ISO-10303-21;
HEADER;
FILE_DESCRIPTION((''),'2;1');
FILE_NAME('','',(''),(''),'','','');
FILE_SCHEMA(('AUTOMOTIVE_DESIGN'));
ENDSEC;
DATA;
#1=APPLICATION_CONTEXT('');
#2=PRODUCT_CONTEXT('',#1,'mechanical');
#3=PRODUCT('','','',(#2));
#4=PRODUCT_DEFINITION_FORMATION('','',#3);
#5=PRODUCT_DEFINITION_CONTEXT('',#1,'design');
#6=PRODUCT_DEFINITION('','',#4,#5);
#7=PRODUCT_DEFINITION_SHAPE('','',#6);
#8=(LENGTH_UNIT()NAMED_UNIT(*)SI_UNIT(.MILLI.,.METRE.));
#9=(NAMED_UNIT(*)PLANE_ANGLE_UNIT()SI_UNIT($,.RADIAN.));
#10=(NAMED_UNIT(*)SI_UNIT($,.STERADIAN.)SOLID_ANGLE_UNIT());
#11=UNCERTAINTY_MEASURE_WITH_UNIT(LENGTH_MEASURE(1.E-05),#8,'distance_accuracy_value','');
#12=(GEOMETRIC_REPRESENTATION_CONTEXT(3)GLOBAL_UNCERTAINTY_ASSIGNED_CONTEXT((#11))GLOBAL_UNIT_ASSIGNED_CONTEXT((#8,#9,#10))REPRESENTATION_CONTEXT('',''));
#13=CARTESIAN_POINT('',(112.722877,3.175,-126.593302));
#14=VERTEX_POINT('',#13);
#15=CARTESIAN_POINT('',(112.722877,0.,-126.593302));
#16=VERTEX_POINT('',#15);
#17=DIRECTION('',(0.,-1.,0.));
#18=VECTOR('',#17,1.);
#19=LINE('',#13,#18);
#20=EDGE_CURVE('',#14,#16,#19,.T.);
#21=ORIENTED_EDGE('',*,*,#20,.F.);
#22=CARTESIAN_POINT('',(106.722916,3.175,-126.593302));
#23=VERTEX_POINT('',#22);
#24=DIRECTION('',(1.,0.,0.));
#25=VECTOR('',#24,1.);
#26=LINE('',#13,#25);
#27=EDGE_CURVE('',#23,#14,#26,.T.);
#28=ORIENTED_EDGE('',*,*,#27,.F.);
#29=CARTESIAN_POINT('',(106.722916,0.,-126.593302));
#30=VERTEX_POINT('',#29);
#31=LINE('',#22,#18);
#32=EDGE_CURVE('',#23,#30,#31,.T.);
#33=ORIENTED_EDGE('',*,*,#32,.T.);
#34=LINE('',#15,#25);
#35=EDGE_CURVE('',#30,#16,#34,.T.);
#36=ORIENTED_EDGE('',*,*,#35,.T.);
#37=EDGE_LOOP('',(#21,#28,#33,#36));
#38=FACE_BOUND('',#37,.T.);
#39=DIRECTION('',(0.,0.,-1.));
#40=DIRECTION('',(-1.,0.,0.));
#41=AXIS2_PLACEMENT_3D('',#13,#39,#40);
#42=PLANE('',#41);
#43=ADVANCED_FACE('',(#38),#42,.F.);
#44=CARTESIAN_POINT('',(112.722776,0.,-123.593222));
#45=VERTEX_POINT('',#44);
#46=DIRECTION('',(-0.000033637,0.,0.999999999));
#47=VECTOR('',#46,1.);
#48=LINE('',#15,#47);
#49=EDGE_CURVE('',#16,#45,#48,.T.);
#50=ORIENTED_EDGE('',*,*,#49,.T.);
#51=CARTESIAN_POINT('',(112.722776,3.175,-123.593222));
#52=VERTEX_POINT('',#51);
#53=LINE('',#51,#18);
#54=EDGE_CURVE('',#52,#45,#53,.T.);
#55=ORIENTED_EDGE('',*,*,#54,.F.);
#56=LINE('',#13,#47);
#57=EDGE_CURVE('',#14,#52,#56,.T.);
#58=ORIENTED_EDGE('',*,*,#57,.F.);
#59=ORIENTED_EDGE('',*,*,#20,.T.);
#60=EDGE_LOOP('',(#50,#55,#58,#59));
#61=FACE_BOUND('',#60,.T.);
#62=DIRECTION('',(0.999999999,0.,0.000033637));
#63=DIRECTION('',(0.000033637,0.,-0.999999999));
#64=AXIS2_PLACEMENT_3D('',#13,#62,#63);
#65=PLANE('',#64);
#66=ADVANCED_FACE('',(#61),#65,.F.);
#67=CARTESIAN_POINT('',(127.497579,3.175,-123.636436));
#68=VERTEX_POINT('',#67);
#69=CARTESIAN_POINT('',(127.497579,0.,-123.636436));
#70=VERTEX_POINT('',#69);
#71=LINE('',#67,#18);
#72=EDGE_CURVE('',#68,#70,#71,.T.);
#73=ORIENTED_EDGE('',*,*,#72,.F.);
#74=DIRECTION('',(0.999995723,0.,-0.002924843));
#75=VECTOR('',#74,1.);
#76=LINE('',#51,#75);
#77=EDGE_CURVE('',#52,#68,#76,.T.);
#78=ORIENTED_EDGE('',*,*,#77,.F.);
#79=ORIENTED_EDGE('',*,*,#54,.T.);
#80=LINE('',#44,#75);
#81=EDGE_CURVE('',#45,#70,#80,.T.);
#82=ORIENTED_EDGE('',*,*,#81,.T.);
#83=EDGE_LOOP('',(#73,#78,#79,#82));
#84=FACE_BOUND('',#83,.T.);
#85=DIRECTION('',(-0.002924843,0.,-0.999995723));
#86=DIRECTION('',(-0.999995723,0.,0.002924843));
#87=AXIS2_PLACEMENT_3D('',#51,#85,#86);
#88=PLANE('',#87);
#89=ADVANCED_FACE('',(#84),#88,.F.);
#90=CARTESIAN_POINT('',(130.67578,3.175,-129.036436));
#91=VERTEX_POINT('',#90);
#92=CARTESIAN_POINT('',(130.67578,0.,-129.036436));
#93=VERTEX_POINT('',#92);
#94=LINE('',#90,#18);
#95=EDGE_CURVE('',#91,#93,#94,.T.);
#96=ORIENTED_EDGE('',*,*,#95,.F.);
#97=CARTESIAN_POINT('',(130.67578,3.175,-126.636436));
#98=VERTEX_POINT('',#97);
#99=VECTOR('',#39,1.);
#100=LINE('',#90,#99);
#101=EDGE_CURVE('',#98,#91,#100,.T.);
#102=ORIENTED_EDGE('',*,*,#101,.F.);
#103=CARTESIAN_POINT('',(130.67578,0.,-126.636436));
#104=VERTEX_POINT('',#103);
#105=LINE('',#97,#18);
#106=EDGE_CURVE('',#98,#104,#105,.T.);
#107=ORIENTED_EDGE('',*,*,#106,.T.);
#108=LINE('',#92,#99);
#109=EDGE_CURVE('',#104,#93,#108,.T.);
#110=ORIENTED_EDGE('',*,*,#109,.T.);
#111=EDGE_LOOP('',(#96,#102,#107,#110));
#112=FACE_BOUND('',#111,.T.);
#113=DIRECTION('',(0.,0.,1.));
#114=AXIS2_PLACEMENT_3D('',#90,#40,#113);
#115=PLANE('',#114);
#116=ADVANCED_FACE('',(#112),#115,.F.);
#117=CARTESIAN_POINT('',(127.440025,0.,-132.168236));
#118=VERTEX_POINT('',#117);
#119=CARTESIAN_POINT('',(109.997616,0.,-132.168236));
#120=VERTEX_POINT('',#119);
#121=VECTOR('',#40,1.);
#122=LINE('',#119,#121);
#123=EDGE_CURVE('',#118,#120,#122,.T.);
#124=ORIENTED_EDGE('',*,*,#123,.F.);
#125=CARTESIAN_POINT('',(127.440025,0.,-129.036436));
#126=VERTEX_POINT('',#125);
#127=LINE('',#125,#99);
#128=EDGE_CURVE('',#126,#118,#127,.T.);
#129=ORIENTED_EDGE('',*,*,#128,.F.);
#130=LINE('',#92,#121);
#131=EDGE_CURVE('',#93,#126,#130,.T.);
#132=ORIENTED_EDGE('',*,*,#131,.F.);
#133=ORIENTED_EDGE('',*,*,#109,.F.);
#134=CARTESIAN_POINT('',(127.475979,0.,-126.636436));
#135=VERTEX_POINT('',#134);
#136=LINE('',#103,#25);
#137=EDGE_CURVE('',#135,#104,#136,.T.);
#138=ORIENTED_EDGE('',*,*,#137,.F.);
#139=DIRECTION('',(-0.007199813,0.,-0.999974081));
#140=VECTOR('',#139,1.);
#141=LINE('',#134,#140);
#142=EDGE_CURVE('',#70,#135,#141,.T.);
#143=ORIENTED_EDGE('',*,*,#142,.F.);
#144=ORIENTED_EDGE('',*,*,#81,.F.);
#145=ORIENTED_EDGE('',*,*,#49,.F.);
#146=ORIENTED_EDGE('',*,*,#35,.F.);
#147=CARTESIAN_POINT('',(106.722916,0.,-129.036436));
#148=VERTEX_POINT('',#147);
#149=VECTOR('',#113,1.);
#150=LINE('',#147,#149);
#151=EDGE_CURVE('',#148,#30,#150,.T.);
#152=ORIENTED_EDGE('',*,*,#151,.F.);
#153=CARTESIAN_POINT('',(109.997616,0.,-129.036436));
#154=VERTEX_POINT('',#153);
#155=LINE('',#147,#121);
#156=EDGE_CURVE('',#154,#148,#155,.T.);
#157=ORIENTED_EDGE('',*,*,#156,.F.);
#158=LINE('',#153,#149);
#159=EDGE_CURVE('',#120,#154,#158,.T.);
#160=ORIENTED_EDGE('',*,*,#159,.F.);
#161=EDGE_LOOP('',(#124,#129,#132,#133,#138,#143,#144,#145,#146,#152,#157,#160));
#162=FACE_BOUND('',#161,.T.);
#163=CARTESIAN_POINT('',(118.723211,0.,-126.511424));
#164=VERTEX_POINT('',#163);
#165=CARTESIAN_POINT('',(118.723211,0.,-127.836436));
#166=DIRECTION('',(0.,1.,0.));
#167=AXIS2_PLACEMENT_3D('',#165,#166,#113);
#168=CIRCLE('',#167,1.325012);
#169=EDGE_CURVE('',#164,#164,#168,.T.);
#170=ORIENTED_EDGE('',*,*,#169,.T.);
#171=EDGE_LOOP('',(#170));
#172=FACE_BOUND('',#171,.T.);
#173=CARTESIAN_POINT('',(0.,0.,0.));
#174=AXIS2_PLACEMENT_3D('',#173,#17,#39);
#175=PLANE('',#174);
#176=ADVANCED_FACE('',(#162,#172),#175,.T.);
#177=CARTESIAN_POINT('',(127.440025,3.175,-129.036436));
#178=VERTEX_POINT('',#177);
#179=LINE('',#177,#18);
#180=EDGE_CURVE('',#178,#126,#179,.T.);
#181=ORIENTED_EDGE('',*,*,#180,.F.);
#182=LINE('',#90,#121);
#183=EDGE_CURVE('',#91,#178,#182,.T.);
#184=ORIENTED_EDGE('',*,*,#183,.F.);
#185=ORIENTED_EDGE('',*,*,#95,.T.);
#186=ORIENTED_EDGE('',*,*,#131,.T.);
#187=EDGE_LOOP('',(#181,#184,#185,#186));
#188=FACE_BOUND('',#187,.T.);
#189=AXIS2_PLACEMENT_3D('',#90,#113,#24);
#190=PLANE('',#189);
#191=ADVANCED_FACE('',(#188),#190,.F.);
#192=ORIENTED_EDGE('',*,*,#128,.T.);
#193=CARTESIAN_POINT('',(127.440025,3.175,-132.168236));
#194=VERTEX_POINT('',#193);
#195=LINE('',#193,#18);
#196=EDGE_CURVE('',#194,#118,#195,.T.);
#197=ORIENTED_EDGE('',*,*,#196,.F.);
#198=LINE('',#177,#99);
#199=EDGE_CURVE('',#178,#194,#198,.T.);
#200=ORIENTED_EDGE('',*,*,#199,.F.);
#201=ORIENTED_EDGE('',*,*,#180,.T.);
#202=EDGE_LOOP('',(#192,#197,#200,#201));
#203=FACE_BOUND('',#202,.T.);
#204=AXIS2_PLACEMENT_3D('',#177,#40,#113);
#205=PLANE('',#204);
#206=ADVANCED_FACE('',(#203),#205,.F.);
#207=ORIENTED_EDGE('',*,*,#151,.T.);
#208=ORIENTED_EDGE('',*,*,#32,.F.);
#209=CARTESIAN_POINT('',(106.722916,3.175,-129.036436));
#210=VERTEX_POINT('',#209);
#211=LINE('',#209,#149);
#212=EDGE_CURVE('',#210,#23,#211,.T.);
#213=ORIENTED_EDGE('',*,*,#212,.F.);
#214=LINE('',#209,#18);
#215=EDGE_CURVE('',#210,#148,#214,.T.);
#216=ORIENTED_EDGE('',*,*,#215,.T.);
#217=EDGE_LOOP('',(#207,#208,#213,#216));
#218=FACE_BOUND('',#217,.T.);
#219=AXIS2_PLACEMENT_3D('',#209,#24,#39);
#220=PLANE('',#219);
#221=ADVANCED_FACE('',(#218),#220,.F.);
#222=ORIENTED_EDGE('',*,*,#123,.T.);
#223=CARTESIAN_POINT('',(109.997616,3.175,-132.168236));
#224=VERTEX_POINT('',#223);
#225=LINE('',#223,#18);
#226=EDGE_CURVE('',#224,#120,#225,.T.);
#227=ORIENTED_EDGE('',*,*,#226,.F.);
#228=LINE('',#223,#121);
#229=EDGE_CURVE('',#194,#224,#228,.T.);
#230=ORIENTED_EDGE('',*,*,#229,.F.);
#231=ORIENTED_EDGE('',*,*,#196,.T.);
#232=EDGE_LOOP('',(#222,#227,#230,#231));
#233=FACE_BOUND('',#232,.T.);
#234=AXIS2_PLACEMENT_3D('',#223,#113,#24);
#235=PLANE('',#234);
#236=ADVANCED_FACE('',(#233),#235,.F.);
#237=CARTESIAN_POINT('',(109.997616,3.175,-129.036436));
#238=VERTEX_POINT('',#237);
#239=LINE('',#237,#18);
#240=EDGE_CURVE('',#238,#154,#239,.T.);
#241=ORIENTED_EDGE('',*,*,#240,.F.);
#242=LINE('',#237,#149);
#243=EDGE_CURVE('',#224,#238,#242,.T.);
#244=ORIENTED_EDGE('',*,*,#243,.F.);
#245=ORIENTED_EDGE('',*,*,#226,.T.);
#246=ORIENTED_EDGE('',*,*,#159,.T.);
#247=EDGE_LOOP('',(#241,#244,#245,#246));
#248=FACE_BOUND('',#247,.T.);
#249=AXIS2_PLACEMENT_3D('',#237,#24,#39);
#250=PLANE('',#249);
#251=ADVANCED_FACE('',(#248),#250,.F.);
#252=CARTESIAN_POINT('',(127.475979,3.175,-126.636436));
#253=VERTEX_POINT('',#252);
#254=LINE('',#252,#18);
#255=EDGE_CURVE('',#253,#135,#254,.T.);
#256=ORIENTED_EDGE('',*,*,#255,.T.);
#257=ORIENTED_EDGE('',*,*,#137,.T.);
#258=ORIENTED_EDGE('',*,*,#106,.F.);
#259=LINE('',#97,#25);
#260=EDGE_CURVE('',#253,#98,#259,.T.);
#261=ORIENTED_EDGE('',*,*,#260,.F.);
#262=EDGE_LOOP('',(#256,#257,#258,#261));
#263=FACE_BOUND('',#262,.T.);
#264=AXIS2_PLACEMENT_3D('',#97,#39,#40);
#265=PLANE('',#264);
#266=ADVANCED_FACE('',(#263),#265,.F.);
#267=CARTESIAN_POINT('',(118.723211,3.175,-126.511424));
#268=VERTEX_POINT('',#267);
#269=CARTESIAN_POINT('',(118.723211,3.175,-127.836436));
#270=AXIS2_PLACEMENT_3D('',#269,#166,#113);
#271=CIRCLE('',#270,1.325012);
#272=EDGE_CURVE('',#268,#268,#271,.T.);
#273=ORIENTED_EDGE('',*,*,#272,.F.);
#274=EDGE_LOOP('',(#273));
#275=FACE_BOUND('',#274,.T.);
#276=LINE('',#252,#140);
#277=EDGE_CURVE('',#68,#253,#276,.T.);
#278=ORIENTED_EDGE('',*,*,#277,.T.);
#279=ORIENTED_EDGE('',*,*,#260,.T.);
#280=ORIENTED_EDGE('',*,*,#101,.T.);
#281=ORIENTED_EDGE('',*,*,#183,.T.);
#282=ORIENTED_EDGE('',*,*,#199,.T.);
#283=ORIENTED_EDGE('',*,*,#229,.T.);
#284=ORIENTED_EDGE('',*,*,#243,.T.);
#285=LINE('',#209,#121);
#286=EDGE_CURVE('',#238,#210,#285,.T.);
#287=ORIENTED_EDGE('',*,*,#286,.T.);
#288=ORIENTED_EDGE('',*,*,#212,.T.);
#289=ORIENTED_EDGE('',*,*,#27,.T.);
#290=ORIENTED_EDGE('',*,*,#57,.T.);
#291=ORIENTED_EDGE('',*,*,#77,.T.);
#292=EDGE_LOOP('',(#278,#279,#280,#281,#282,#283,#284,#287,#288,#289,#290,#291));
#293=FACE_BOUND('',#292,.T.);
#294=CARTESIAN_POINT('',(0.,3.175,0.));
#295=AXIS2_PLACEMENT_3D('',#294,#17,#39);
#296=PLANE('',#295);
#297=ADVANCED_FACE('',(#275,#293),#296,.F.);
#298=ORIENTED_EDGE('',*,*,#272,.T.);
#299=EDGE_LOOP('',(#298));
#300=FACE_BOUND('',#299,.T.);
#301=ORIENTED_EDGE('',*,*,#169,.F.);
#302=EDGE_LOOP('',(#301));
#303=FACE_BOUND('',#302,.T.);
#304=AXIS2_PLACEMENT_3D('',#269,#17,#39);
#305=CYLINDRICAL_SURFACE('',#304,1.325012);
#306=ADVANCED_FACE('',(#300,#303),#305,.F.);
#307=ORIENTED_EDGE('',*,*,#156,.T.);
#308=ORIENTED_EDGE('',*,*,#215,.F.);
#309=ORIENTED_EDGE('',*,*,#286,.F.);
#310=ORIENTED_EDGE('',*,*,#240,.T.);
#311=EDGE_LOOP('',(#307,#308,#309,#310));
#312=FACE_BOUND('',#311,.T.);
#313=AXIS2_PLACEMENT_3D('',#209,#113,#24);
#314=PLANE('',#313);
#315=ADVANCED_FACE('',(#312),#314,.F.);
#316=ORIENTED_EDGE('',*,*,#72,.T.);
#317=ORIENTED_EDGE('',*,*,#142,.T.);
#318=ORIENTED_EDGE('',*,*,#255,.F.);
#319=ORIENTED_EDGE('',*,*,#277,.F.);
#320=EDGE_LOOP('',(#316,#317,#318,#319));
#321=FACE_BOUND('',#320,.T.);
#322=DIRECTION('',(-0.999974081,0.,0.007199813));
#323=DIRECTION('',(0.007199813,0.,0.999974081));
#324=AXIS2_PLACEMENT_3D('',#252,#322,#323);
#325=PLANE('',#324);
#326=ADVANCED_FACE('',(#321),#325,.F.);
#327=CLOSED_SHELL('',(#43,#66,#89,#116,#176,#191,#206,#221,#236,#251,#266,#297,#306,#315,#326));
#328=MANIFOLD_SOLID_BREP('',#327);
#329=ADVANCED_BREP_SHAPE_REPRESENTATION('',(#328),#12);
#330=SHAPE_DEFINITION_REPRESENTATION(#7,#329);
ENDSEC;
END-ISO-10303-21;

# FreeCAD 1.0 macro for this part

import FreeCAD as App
import Part
import Sketcher
from FreeCAD import Vector


def add_polygon(sketch, points):
    """Adds a closed chain of lines whose ends are joined by coincident constraints."""
    first, n = sketch.GeometryCount, len(points)
    for a, b in zip(points, points[1:] + points[:1]):
        sketch.addGeometry(Part.LineSegment(App.Vector(*a, 0), App.Vector(*b, 0)), False)
    for i in range(n):
        sketch.addConstraint(Sketcher.Constraint("Coincident", first + i, 2, first + (i + 1) % n, 1))

doc = App.newDocument("Part")
body = doc.addObject("PartDesign::Body", "Body")

# Sketch on XZ plane
sketch1 = body.newObject("Sketcher::SketchObject", "Sketch")
sketch1.AttachmentSupport = (doc.getObject("XZ_Plane"), [""])
sketch1.MapMode = "FlatFace"
add_polygon(sketch1, [(112.7, -123.6), (127.5, -123.6), (127.5, -126.6), (130.7, -126.6), (130.7, -129), (127.4, -129), (127.4, -132.2), (110, -132.2), (110, -129), (106.7, -129), (106.7, -126.6), (112.7, -126.6)])  # lines 0-11
sketch1.addGeometry(Part.Circle(Vector(118.7, -127.8, 0), Vector(0, 0, 1), 1.3), False)  # 12
sketch1.addConstraint([
    Sketcher.Constraint("Horizontal", 2),
    Sketcher.Constraint("Vertical", 3),
    Sketcher.Constraint("Horizontal", 4),
    Sketcher.Constraint("Vertical", 5),
    Sketcher.Constraint("Horizontal", 6),
    Sketcher.Constraint("Vertical", 7),
    Sketcher.Constraint("Horizontal", 8),
    Sketcher.Constraint("Vertical", 9),
    Sketcher.Constraint("Horizontal", 10),
    Sketcher.Constraint("Horizontal", 4, 2, 7, 2),
    Sketcher.Constraint("DistanceY", 3, 2, 3, 1, 2.4),
    Sketcher.Constraint("DistanceY", 1, 2, 0, 2, 3.0),
    Sketcher.Constraint("DistanceY", 12, 3, 0, 2, 4.2),
    Sketcher.Constraint("Diameter", 12, 2.650024),
    Sketcher.Constraint("DistanceX", 2, 1, 2, 2, 3.199801),
    Sketcher.Constraint("DistanceX", 8, 2, 8, 1, 3.2747),
    Sketcher.Constraint("DistanceY", 5, 2, 5, 1, 3.1318),
    Sketcher.Constraint("DistanceX", 6, 2, 6, 1, 17.442409),
    Sketcher.Constraint("DistanceX", 10, 1, 10, 2, 5.999961),
    Sketcher.Constraint("DistanceX", 1, 2, 0, 2, 0.0216),
    Sketcher.Constraint("DistanceX", 11, 2, 10, 2, 0.000101),
    Sketcher.Constraint("Distance", 11, 3.00008),
    Sketcher.Constraint("DistanceX", 4, 2, 4, 1, 3.235755),
    Sketcher.Constraint("DistanceY", 9, 1, 9, 2, 2.443134),
    Sketcher.Constraint("DistanceX", -1, 1, 12, 3, 118.723211),
    Sketcher.Constraint("DistanceX", -1, 1, 0, 2, 127.497579),
    Sketcher.Constraint("DistanceY", 12, 3, -1, 1, 127.836436),
])
pad1 = body.newObject("PartDesign::Pad", "Pad")
pad1.Profile = sketch1
pad1.Length = 3.175
pad1.Reversed = True

doc.recompute()
